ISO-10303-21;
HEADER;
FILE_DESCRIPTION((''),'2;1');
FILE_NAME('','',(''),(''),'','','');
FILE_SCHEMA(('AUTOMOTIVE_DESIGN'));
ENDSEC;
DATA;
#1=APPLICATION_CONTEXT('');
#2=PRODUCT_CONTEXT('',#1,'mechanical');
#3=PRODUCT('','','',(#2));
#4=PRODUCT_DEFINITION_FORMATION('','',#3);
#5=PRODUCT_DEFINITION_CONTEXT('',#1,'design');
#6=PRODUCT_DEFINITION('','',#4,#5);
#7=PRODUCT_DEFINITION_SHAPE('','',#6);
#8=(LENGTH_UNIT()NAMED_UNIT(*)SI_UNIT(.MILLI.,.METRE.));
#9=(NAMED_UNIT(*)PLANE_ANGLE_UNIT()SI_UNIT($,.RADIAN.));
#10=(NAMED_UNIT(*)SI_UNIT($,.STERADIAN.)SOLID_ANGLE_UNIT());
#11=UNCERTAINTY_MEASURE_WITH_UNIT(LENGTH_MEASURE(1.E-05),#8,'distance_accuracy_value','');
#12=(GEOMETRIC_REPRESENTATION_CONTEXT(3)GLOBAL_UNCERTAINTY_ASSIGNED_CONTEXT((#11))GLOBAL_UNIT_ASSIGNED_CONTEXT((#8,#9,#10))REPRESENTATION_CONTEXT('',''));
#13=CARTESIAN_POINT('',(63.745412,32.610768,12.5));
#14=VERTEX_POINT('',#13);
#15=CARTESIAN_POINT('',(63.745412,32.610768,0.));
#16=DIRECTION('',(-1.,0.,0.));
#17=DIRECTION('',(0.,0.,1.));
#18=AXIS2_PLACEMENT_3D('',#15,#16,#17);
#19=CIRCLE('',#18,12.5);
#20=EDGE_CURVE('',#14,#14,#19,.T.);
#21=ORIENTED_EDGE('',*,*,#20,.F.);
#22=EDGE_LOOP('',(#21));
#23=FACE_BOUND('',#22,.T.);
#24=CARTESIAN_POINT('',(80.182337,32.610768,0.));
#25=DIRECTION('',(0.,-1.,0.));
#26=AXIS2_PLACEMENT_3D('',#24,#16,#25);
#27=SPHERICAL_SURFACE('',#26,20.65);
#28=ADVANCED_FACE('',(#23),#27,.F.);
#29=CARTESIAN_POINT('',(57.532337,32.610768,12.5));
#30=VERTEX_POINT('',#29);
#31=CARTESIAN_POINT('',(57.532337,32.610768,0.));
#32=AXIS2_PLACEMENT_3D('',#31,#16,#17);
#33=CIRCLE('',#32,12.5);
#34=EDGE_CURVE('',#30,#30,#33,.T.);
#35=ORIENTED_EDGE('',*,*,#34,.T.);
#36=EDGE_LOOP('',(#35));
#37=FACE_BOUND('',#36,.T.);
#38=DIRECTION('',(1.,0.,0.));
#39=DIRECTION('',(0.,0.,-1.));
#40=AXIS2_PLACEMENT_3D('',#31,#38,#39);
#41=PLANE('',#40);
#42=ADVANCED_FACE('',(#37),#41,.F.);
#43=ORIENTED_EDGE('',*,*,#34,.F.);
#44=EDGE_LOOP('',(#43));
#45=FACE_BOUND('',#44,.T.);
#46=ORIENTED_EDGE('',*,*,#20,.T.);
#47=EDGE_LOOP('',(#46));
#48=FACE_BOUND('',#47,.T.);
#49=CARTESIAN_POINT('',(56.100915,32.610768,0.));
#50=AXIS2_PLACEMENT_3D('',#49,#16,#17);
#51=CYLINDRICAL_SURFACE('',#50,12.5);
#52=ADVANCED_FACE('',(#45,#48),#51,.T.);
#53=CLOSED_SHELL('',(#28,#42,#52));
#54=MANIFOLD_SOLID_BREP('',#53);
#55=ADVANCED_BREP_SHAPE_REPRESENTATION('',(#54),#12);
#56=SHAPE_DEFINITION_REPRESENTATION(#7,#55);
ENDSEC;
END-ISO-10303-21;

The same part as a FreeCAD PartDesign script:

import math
import FreeCAD as App
import Part
import Sketcher
from FreeCAD import Vector
Q = App.Units.Quantity

doc = App.newDocument("Part")
params = doc.addObject("Spreadsheet::Sheet", "Params")
for row, (alias, value) in enumerate([
    ("sketch1_width", "2 mm"),
    ("sketch1_radius", "20.65 mm"),
    ("sketch1_height", "12.5 mm"),
    ("revolution_angle", "360 deg"),
], start=1):
    params.set(f"A{row}", alias)
    params.set(f"B{row}", "=" + value)
    params.setAlias(f"B{row}", alias)

body = doc.addObject("PartDesign::Body", "Body")

sketch1 = doc.addObject("Sketcher::SketchObject", "Sketch")
body.addObject(sketch1)
sketch1.AttachmentSupport = (doc.XY_Plane, [""])
sketch1.MapMode = "FlatFace"
sketch1.addGeometry([
    Part.LineSegment(Vector(57.5, 45.1, 0), Vector(57.5, 32.6, 0)),
    Part.LineSegment(Vector(57.5, 32.6, 0), Vector(59.5, 32.6, 0)),
    Part.ArcOfCircle(Part.Circle(Vector(80.2, 32.6, 0), Vector(0, 0, 1), 20.6), math.radians(143), math.radians(180)),
    Part.LineSegment(Vector(63.7, 45.1, 0), Vector(57.5, 45.1, 0)),
], False)
sketch1.addGeometry(Part.LineSegment(Vector(57.5, 32.6, 0), Vector(80.2, 32.6, 0)), True)
sketch1.addConstraint([
    Sketcher.Constraint("Coincident", 0, 2, 1, 1),
    Sketcher.Constraint("Coincident", 1, 2, 2, 2),
    Sketcher.Constraint("Coincident", 2, 1, 3, 1),
    Sketcher.Constraint("Coincident", 3, 2, 0, 1),
    Sketcher.Constraint("Vertical", 0),
    Sketcher.Constraint("Horizontal", 1),
    Sketcher.Constraint("Horizontal", 3),
    Sketcher.Constraint("Horizontal", 4),
    Sketcher.Constraint("Coincident", 4, 1, 0, 2),
    Sketcher.Constraint("Coincident", 4, 2, 2, 3),
    Sketcher.Constraint("DistanceX", 1, 1, 1, 2, Q("2 mm")),
    Sketcher.Constraint("Radius", 2, Q("20.65 mm")),
    Sketcher.Constraint("DistanceY", 0, 2, 0, 1, Q("12.5 mm")),
    Sketcher.Constraint("DistanceY", -1, 1, 2, 3, Q("32.610768 mm")),
    Sketcher.Constraint("DistanceX", -1, 1, 2, 3, Q("80.182337 mm")),
])
sketch1.setExpression("Constraints[10]", "Params.sketch1_width")
sketch1.setExpression("Constraints[11]", "Params.sketch1_radius")
sketch1.setExpression("Constraints[12]", "Params.sketch1_height")
revolution = doc.addObject("PartDesign::Revolution", "Revolution")
body.addObject(revolution)
revolution.Profile = sketch1
revolution.ReferenceAxis = (sketch1, ["Axis0"])
revolution.setExpression("Angle", "Params.revolution_angle")

doc.recompute()
